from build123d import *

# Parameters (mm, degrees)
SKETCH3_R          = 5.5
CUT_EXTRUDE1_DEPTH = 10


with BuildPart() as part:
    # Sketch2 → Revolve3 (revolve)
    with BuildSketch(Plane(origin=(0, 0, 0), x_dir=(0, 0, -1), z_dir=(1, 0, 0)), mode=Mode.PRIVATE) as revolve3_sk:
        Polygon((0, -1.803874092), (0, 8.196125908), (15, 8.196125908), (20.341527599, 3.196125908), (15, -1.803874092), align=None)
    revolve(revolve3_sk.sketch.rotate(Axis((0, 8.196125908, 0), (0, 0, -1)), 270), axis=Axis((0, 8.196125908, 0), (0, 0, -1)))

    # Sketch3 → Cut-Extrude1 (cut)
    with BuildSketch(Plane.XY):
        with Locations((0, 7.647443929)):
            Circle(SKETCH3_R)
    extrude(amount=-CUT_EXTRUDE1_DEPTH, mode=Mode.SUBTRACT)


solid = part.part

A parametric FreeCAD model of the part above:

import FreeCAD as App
import Part
import Sketcher

V = App.Vector


def add_polygon(sketch, points):
    """Adds a closed chain of lines whose ends are joined by coincident constraints."""
    first, n = sketch.GeometryCount, len(points)
    for a, b in zip(points, points[1:] + points[:1]):
        sketch.addGeometry(Part.LineSegment(App.Vector(*a, 0), App.Vector(*b, 0)), False)
    for i in range(n):
        sketch.addConstraint(Sketcher.Constraint("Coincident", first + i, 2, first + (i + 1) % n, 1))

doc = App.newDocument("Part")
body = doc.addObject("PartDesign::Body", "Body")

# Sketch on YZ plane
sketch1 = body.newObject("Sketcher::SketchObject", "Sketch")
sketch1.AttachmentSupport = (doc.getObject("YZ_Plane"), [""])
sketch1.MapMode = "FlatFace"
add_polygon(sketch1, [(8.196126, 0), (-1.803874, 0), (-1.803874, -15), (3.196126, -20.341528), (8.196126, -15)])  # lines 0-4
sketch1.addGeometry(Part.LineSegment(V(8.196126, 0, 0), V(8.196126, -20.341528, 0)), True)  # axis
sketch1.addConstraint(Sketcher.Constraint("Horizontal", 0))
sketch1.addConstraint(Sketcher.Constraint("Vertical", 1))
sketch1.addConstraint(Sketcher.Constraint("Vertical", 4))
sketch1.addConstraint(Sketcher.Constraint("Vertical", 5))
sketch1.addConstraint(Sketcher.Constraint("Coincident", 5, 1, 4, 2))
sketch1.addConstraint(Sketcher.Constraint("PointOnObject", 0, 2, -1))
sketch1.addConstraint(Sketcher.Constraint("Horizontal", 1, 2, 3, 2))
sketch1.addConstraint(Sketcher.Constraint("Horizontal", 2, 2, 5, 2))
sketch1.addConstraint(Sketcher.Constraint("Equal", 2, 3))
sketch1.addConstraint(Sketcher.Constraint("DistanceX", 0, 2, 0, 1, 10.0))
sketch1.addConstraint(Sketcher.Constraint("DistanceY", 1, 2, 1, 1, 15.0))
sketch1.addConstraint(Sketcher.Constraint("Distance", 2, 7.316551))
sketch1.addConstraint(Sketcher.Constraint("DistanceX", 0, 2, -1, 1, 1.803874))
revolution = body.newObject("PartDesign::Revolution", "Revolution")
revolution.Profile = sketch1
revolution.ReferenceAxis = (sketch1, ["Axis0"])
revolution.Angle = 360

# Sketch on XY plane
sketch2 = body.newObject("Sketcher::SketchObject", "Sketch001")
sketch2.AttachmentSupport = (doc.getObject("XY_Plane"), [""])
sketch2.MapMode = "FlatFace"
sketch2.addGeometry(Part.Circle(V(0, 7.647444, 0), V(0, 0, 1), 5.5), False)
sketch2.addConstraint(Sketcher.Constraint("PointOnObject", 0, 3, -2))
sketch2.addConstraint(Sketcher.Constraint("Diameter", 0, 11.0))
sketch2.addConstraint(Sketcher.Constraint("DistanceY", -1, 1, 0, 3, 7.647444))
pocket1 = body.newObject("PartDesign::Pocket", "Pocket")
pocket1.Profile = sketch2
pocket1.Length = 10

doc.recompute()
